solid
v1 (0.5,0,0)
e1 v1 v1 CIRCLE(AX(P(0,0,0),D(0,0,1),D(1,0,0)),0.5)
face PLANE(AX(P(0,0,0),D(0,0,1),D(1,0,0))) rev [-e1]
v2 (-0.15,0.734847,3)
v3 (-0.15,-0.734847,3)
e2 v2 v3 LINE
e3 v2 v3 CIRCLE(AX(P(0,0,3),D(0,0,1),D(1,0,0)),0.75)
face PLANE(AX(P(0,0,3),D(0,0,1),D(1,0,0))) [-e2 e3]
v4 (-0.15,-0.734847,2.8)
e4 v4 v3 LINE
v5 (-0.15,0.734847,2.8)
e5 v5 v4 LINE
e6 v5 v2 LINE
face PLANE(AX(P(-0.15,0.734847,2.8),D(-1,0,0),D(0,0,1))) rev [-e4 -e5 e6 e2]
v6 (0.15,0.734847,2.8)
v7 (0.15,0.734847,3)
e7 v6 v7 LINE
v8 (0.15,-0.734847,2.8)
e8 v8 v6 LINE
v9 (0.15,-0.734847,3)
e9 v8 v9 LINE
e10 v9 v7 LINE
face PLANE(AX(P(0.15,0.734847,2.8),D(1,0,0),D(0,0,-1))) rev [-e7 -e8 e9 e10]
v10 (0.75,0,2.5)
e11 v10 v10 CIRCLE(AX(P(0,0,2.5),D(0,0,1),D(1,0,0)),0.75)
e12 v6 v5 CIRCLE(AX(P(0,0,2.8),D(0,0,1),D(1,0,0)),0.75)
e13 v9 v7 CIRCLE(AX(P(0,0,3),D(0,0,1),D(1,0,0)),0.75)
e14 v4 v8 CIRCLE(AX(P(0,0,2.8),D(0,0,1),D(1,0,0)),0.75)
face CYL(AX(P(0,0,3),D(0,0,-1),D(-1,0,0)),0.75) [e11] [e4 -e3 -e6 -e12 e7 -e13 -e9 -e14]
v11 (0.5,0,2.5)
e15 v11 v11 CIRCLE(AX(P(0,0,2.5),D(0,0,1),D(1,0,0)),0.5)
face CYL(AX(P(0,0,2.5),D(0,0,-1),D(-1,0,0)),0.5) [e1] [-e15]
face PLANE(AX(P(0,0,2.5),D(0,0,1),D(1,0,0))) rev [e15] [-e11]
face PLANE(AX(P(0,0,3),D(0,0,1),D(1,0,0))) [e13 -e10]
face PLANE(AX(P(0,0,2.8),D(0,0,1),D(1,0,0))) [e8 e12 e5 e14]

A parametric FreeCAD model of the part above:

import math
import FreeCAD as App
import Part
import Sketcher
from FreeCAD import Vector
Q = App.Units.Quantity

doc = App.newDocument("Part")
body = doc.addObject("PartDesign::Body", "Body")

# Sketch on XY plane
sketch1 = body.newObject("Sketcher::SketchObject", "Sketch")
sketch1.AttachmentSupport = (doc.getObject("XY_Plane"), [""])
sketch1.MapMode = "FlatFace"
sketch1.addGeometry(Part.Circle(Vector(0, 0, 0), Vector(0, 0, 1), 0.5), False)
sketch1.addConstraint([
    Sketcher.Constraint("Coincident", 0, 3, -1, 1),
    Sketcher.Constraint("Diameter", 0, Q("1 mm")),
])
pad1 = body.newObject("PartDesign::Pad", "Pad")
pad1.Profile = sketch1
pad1.Length = 2.5

# Sketch on XY plane
sketch2 = body.newObject("Sketcher::SketchObject", "Sketch001")
sketch2.AttachmentSupport = (doc.getObject("XY_Plane"), [""])
sketch2.MapMode = "FlatFace"
sketch2.AttachmentOffset = App.Placement(Vector(0, 0, 2.5), App.Rotation())
sketch2.addGeometry(Part.Circle(Vector(0, 0, 0), Vector(0, 0, 1), 0.75), False)
sketch2.addConstraint([
    Sketcher.Constraint("Coincident", 0, 3, -1, 1),
    Sketcher.Constraint("Diameter", 0, Q("1.5 mm")),
])
pad2 = body.newObject("PartDesign::Pad", "Pad001")
pad2.Profile = sketch2
pad2.Length = 0.5

# Sketch on XY plane
sketch3 = body.newObject("Sketcher::SketchObject", "Sketch002")
sketch3.AttachmentSupport = (doc.getObject("XY_Plane"), [""])
sketch3.MapMode = "FlatFace"
sketch3.AttachmentOffset = App.Placement(Vector(0, 0, 2.8), App.Rotation())
sketch3.addGeometry([
    Part.LineSegment(Vector(0.15, -0.734847, 0), Vector(0.15, 0.734847, 0)),
    Part.ArcOfCircle(Part.Circle(Vector(0, 0, 0), Vector(0, 0, 1), 0.75), math.radians(78.463041), math.radians(101.536959)),
    Part.LineSegment(Vector(-0.15, 0.734847, 0), Vector(-0.15, -0.734847, 0)),
    Part.ArcOfCircle(Part.Circle(Vector(0, 0, 0), Vector(0, 0, 1), 0.75), math.radians(-101.536959), math.radians(-78.463041)),
], False)
sketch3.addConstraint([
    Sketcher.Constraint("Coincident", 0, 2, 1, 1),
    Sketcher.Constraint("Coincident", 1, 2, 2, 1),
    Sketcher.Constraint("Coincident", 2, 2, 3, 1),
    Sketcher.Constraint("Coincident", 3, 2, 0, 1),
    Sketcher.Constraint("Vertical", 0),
    Sketcher.Constraint("Vertical", 2),
    Sketcher.Constraint("Coincident", 1, 3, -1, 1),
    Sketcher.Constraint("Coincident", 3, 3, -1, 1),
    Sketcher.Constraint("Equal", 1, 3),
    Sketcher.Constraint("Horizontal", 0, 2, 1, 2),
    Sketcher.Constraint("Radius", 1, Q("0.75 mm")),
    Sketcher.Constraint("DistanceX", 1, 2, 0, 2, Q("0.3 mm")),
])
pocket1 = body.newObject("PartDesign::Pocket", "Pocket")
pocket1.Profile = sketch3
pocket1.Length = 0.2
pocket1.Reversed = True

doc.recompute()
